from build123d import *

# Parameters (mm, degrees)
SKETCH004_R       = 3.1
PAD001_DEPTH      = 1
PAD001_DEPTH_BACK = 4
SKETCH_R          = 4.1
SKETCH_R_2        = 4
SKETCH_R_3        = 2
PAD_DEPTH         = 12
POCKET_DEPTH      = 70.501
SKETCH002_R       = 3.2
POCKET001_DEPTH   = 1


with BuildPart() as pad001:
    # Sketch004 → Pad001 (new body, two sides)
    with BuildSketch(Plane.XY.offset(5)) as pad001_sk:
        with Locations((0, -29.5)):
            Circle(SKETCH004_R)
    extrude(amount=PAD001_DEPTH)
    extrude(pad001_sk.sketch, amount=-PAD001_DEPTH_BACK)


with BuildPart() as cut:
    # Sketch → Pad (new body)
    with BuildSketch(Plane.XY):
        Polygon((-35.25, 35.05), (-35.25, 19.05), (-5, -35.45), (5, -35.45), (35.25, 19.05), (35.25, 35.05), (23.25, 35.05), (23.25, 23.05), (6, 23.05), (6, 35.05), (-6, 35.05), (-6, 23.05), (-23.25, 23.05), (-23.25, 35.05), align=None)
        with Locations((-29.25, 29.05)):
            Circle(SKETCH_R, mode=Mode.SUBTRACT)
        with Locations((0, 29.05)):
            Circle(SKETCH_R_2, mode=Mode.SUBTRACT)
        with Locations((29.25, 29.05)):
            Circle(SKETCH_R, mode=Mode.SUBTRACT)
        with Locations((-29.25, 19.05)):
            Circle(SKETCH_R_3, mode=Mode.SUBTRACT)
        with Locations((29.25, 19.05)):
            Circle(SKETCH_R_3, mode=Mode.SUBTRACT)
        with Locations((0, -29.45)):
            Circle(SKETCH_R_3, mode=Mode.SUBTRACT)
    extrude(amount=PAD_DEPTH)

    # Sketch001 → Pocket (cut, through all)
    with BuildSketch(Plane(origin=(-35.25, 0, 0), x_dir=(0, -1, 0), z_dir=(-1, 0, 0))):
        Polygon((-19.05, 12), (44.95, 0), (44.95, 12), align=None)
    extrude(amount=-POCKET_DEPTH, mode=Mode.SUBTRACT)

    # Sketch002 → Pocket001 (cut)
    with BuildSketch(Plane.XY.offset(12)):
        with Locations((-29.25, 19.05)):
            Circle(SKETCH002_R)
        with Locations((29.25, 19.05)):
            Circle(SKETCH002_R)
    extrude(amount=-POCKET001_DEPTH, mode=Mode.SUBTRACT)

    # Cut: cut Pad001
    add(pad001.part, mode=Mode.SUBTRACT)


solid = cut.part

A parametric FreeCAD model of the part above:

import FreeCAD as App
import Part
import Sketcher

V = App.Vector
Q = App.Units.Quantity

doc = App.newDocument("Part")
body = doc.addObject("PartDesign::Body", "Body")

# Sketch on XY plane
sketch1 = body.newObject("Sketcher::SketchObject", "Sketch")
sketch1.AttachmentSupport = (doc.getObject("XY_Plane"), [""])
sketch1.MapMode = "FlatFace"
sketch1.AttachmentOffset = App.Placement(V(0, 0, 5), App.Rotation())
sketch1.addGeometry(Part.Circle(V(0, -29.5, 0), V(0, 0, 1), 3.1), False)
sketch1.addConstraint([
    Sketcher.Constraint("PointOnObject", 0, 3, -2),
    Sketcher.Constraint("Diameter", 0, Q("6.2 mm")),
    Sketcher.Constraint("DistanceY", 0, 3, -1, 1, Q("29.5 mm")),
])
pad1 = body.newObject("PartDesign::Pad", "Pad")
pad1.Profile = sketch1
pad1.Type = "TwoLengths"
pad1.Length = 1
pad1.Length2 = 4
body2 = doc.addObject("PartDesign::Body", "Body001")

# Sketch on XY plane
sketch2 = body2.newObject("Sketcher::SketchObject", "Sketch001")
sketch2.AttachmentSupport = (doc.getObject("XY_Plane001"), [""])
sketch2.MapMode = "FlatFace"
sketch2.addGeometry([
    Part.LineSegment(V(-35.2, 35, 0), V(-35.2, 19.1, 0)),  # 0
    Part.LineSegment(V(-35.2, 19.1, 0), V(-5, -35.5, 0)),  # 1
    Part.LineSegment(V(-5, -35.5, 0), V(5, -35.5, 0)),  # 2
    Part.LineSegment(V(5, -35.5, 0), V(35.2, 19.1, 0)),  # 3
    Part.LineSegment(V(35.2, 19.1, 0), V(35.2, 35, 0)),  # 4
    Part.LineSegment(V(35.2, 35, 0), V(23.2, 35, 0)),  # 5
    Part.LineSegment(V(23.2, 35, 0), V(23.2, 23.1, 0)),  # 6
    Part.LineSegment(V(23.2, 23.1, 0), V(6, 23.1, 0)),  # 7
    Part.LineSegment(V(6, 23.1, 0), V(6, 35, 0)),  # 8
    Part.LineSegment(V(6, 35, 0), V(-6, 35, 0)),  # 9
    Part.LineSegment(V(-6, 35, 0), V(-6, 23.1, 0)),  # 10
    Part.LineSegment(V(-6, 23.1, 0), V(-23.2, 23.1, 0)),  # 11
    Part.LineSegment(V(-23.2, 23.1, 0), V(-23.2, 35, 0)),  # 12
    Part.LineSegment(V(-23.2, 35, 0), V(-35.2, 35, 0)),  # 13
    Part.Circle(V(0, -29.4, 0), V(0, 0, 1), 2),  # 14
    Part.Circle(V(-29.2, 19.1, 0), V(0, 0, 1), 2),  # 15
    Part.Circle(V(-29.2, 29.1, 0), V(0, 0, 1), 4.1),  # 16
    Part.Circle(V(0, 29.1, 0), V(0, 0, 1), 4),  # 17
    Part.Circle(V(29.2, 19.1, 0), V(0, 0, 1), 2),  # 18
    Part.Circle(V(29.2, 29.1, 0), V(0, 0, 1), 4.1),  # 19
], False)
sketch2.addConstraint([
    Sketcher.Constraint("Coincident", 0, 2, 1, 1),
    Sketcher.Constraint("Coincident", 1, 2, 2, 1),
    Sketcher.Constraint("Coincident", 2, 2, 3, 1),
    Sketcher.Constraint("Coincident", 3, 2, 4, 1),
    Sketcher.Constraint("Coincident", 4, 2, 5, 1),
    Sketcher.Constraint("Coincident", 5, 2, 6, 1),
    Sketcher.Constraint("Coincident", 6, 2, 7, 1),
    Sketcher.Constraint("Coincident", 7, 2, 8, 1),
    Sketcher.Constraint("Coincident", 8, 2, 9, 1),
    Sketcher.Constraint("Coincident", 9, 2, 10, 1),
    Sketcher.Constraint("Coincident", 10, 2, 11, 1),
    Sketcher.Constraint("Coincident", 11, 2, 12, 1),
    Sketcher.Constraint("Coincident", 12, 2, 13, 1),
    Sketcher.Constraint("Coincident", 13, 2, 0, 1),
    Sketcher.Constraint("Vertical", 0),
    Sketcher.Constraint("Horizontal", 2),
    Sketcher.Constraint("Vertical", 4),
    Sketcher.Constraint("Horizontal", 5),
    Sketcher.Constraint("Vertical", 6),
    Sketcher.Constraint("Horizontal", 7),
    Sketcher.Constraint("Vertical", 8),
    Sketcher.Constraint("Horizontal", 9),
    Sketcher.Constraint("Vertical", 10),
    Sketcher.Constraint("Horizontal", 11),
    Sketcher.Constraint("Vertical", 12),
    Sketcher.Constraint("Horizontal", 13),
    Sketcher.Constraint("Equal", 14, 15),
    Sketcher.Constraint("Equal", 15, 18),
    Sketcher.Constraint("Equal", 16, 19),
    Sketcher.Constraint("Symmetric", 15, 3, 18, 3, -2),
    Sketcher.Constraint("Symmetric", 16, 3, 19, 3, -2),
    Sketcher.Constraint("Symmetric", 0, 2, 3, 2, -2),
    Sketcher.Constraint("Symmetric", 7, 2, 10, 2, -2),
    Sketcher.Constraint("Symmetric", 5, 2, 12, 2, -2),
    Sketcher.Constraint("PointOnObject", 14, 3, -2),
    Sketcher.Constraint("PointOnObject", 17, 3, -2),
    Sketcher.Constraint("Horizontal", 16, 3, 17, 3),
    Sketcher.Constraint("Horizontal", 18, 3, 0, 2),
    Sketcher.Constraint("Horizontal", 5, 2, 8, 2),
    Sketcher.Constraint("Vertical", 15, 3, 16, 3),
    Sketcher.Constraint("Equal", 5, 9),
    Sketcher.Constraint("Equal", 13, 6),
    Sketcher.Constraint("Equal", 1, 3),
    Sketcher.Constraint("Diameter", 14, Q("4 mm")),
    Sketcher.Constraint("Diameter", 17, Q("8 mm")),
    Sketcher.Constraint("Diameter", 16, Q("8.2 mm")),
    Sketcher.Constraint("DistanceX", 2, 1, 2, 2, Q("10 mm")),
    Sketcher.Constraint("DistanceX", 5, 2, 5, 1, Q("12 mm")),
    Sketcher.Constraint("DistanceY", 0, 2, 0, 1, Q("16 mm")),
    Sketcher.Constraint("DistanceY", 15, 3, 16, 3, Q("10 mm")),
    Sketcher.Constraint("DistanceX", 0, 2, 15, 3, Q("6 mm")),
    Sketcher.Constraint("DistanceY", 1, 2, 14, 3, Q("6 mm")),
    Sketcher.Constraint("DistanceX", 7, 2, 7, 1, Q("17.25 mm")),
    Sketcher.Constraint("DistanceY", 14, 3, 15, 3, Q("48.5 mm")),
    Sketcher.Constraint("DistanceY", 14, 3, -1, 1, Q("29.45 mm")),
])
pad2 = body2.newObject("PartDesign::Pad", "Pad001")
pad2.Profile = sketch2
pad2.Length = 12

# Sketch on YZ plane
sketch3 = body2.newObject("Sketcher::SketchObject", "Sketch002")
sketch3.AttachmentSupport = (doc.getObject("YZ_Plane001"), [""])
sketch3.MapMode = "FlatFace"
sketch3.AttachmentOffset = App.Placement(V(0, 0, -35.25), App.Rotation())
sketch3.addGeometry([
    Part.LineSegment(V(19, 12, 0), V(-45, 0, 0)),
    Part.LineSegment(V(-45, 0, 0), V(-45, 12, 0)),
    Part.LineSegment(V(-45, 12, 0), V(19, 12, 0)),
], False)
sketch3.addConstraint([
    Sketcher.Constraint("Coincident", 0, 2, 1, 1),
    Sketcher.Constraint("Coincident", 1, 2, 2, 1),
    Sketcher.Constraint("Coincident", 2, 2, 0, 1),
    Sketcher.Constraint("Vertical", 1),
    Sketcher.Constraint("Horizontal", 2),
    Sketcher.Constraint("PointOnObject", 0, 2, -1),
    Sketcher.Constraint("DistanceX", 2, 1, 2, 2, Q("64 mm")),
    Sketcher.Constraint("DistanceY", 1, 1, 1, 2, Q("12 mm")),
    Sketcher.Constraint("DistanceX", 0, 2, -1, 1, Q("44.95 mm")),
])
pocket1 = body2.newObject("PartDesign::Pocket", "Pocket")
pocket1.Profile = sketch3
pocket1.Type = "ThroughAll"
pocket1.Reversed = True

# Sketch on XY plane
sketch4 = body2.newObject("Sketcher::SketchObject", "Sketch003")
sketch4.AttachmentSupport = (doc.getObject("XY_Plane001"), [""])
sketch4.MapMode = "FlatFace"
sketch4.AttachmentOffset = App.Placement(V(0, 0, 12), App.Rotation())
sketch4.addGeometry([
    Part.Circle(V(-29.2, 19.1, 0), V(0, 0, 1), 3.2),
    Part.Circle(V(29.2, 19.1, 0), V(0, 0, 1), 3.2),
], False)
sketch4.addConstraint([
    Sketcher.Constraint("Equal", 0, 1),
    Sketcher.Constraint("Symmetric", 0, 3, 1, 3, -2),
    Sketcher.Constraint("Diameter", 0, Q("6.4 mm")),
    Sketcher.Constraint("DistanceX", 0, 3, 1, 3, Q("58.5 mm")),
    Sketcher.Constraint("DistanceY", -1, 1, 0, 3, Q("19.05 mm")),
])
pocket2 = body2.newObject("PartDesign::Pocket", "Pocket001")
pocket2.Profile = sketch4
pocket2.Length = 1
doc.recompute()

boolean = body2.newObject("PartDesign::Boolean", "Boolean")
boolean.Type = "Cut"
boolean.addObjects([body])

doc.recompute()
